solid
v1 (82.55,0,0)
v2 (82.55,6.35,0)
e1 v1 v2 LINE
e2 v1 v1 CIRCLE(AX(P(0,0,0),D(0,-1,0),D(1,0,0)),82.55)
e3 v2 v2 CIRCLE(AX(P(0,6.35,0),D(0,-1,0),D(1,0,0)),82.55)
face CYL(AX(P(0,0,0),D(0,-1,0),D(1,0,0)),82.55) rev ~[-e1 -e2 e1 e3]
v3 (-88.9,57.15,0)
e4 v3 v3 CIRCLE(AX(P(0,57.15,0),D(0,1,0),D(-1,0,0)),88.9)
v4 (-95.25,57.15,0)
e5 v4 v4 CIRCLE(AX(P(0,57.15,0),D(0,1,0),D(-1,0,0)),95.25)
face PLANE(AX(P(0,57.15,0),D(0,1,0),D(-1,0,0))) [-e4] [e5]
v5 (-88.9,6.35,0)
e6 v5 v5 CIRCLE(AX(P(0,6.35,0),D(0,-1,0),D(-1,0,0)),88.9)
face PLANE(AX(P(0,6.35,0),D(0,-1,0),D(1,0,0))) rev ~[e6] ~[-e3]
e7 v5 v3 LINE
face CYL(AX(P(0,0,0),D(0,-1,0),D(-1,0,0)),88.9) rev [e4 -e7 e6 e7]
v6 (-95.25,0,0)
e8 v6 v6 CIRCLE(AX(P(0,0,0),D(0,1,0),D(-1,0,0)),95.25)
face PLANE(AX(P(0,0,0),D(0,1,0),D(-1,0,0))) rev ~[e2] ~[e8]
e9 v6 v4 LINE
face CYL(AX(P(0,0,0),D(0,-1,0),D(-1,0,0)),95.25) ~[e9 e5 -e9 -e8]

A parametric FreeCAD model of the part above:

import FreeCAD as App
import Part
import Sketcher
from FreeCAD import Vector
Q = App.Units.Quantity

doc = App.newDocument("Part")
params = doc.addObject("Spreadsheet::Sheet", "Params")
for row, (alias, value) in enumerate([
    ("sketch1_diameter", "7 in"),
    ("sketch1_diameter2", "7.5 in"),
    ("pad1_length", "2.25 in"),
    ("sketch2_diameter", "6.5 in"),
    ("sketch2_diameter2", "7 in"),
    ("pad2_length", "0.25 in"),
], start=1):
    params.set(f"A{row}", alias)
    params.set(f"B{row}", "=" + value)
    params.setAlias(f"B{row}", alias)

body = doc.addObject("PartDesign::Body", "Body")

sketch1 = doc.addObject("Sketcher::SketchObject", "Sketch")
body.addObject(sketch1)
sketch1.AttachmentSupport = (doc.XZ_Plane, [""])
sketch1.MapMode = "FlatFace"
sketch1.addGeometry([
    Part.Circle(Vector(0, 0, 0), Vector(0, 0, 1), 95),
    Part.Circle(Vector(0, 0, 0), Vector(0, 0, 1), 89),
], False)
sketch1.addConstraint([
    Sketcher.Constraint("Coincident", 0, 3, -1, 1),
    Sketcher.Constraint("Coincident", 1, 3, -1, 1),
    Sketcher.Constraint("Diameter", 1, Q("7 in")),
    Sketcher.Constraint("Diameter", 0, Q("7.5 in")),
])
sketch1.setExpression("Constraints[2]", "Params.sketch1_diameter")
sketch1.setExpression("Constraints[3]", "Params.sketch1_diameter2")
pad1 = doc.addObject("PartDesign::Pad", "Pad")
body.addObject(pad1)
pad1.Profile = sketch1
pad1.setExpression("Length", "Params.pad1_length")
pad1.Reversed = True

sketch2 = doc.addObject("Sketcher::SketchObject", "Sketch001")
body.addObject(sketch2)
sketch2.AttachmentSupport = (doc.XZ_Plane, [""])
sketch2.MapMode = "FlatFace"
sketch2.addGeometry([
    Part.Circle(Vector(0, 0, 0), Vector(0, 0, 1), 89),
    Part.Circle(Vector(0, 0, 0), Vector(0, 0, 1), 83),
], False)
sketch2.addConstraint([
    Sketcher.Constraint("Coincident", 0, 3, -1, 1),
    Sketcher.Constraint("Coincident", 1, 3, -1, 1),
    Sketcher.Constraint("Diameter", 1, Q("6.5 in")),
    Sketcher.Constraint("Diameter", 0, Q("7 in")),
])
sketch2.setExpression("Constraints[2]", "Params.sketch2_diameter")
sketch2.setExpression("Constraints[3]", "Params.sketch2_diameter2")
pad2 = doc.addObject("PartDesign::Pad", "Pad001")
body.addObject(pad2)
pad2.Profile = sketch2
pad2.setExpression("Length", "Params.pad2_length")
pad2.Reversed = True

doc.recompute()
